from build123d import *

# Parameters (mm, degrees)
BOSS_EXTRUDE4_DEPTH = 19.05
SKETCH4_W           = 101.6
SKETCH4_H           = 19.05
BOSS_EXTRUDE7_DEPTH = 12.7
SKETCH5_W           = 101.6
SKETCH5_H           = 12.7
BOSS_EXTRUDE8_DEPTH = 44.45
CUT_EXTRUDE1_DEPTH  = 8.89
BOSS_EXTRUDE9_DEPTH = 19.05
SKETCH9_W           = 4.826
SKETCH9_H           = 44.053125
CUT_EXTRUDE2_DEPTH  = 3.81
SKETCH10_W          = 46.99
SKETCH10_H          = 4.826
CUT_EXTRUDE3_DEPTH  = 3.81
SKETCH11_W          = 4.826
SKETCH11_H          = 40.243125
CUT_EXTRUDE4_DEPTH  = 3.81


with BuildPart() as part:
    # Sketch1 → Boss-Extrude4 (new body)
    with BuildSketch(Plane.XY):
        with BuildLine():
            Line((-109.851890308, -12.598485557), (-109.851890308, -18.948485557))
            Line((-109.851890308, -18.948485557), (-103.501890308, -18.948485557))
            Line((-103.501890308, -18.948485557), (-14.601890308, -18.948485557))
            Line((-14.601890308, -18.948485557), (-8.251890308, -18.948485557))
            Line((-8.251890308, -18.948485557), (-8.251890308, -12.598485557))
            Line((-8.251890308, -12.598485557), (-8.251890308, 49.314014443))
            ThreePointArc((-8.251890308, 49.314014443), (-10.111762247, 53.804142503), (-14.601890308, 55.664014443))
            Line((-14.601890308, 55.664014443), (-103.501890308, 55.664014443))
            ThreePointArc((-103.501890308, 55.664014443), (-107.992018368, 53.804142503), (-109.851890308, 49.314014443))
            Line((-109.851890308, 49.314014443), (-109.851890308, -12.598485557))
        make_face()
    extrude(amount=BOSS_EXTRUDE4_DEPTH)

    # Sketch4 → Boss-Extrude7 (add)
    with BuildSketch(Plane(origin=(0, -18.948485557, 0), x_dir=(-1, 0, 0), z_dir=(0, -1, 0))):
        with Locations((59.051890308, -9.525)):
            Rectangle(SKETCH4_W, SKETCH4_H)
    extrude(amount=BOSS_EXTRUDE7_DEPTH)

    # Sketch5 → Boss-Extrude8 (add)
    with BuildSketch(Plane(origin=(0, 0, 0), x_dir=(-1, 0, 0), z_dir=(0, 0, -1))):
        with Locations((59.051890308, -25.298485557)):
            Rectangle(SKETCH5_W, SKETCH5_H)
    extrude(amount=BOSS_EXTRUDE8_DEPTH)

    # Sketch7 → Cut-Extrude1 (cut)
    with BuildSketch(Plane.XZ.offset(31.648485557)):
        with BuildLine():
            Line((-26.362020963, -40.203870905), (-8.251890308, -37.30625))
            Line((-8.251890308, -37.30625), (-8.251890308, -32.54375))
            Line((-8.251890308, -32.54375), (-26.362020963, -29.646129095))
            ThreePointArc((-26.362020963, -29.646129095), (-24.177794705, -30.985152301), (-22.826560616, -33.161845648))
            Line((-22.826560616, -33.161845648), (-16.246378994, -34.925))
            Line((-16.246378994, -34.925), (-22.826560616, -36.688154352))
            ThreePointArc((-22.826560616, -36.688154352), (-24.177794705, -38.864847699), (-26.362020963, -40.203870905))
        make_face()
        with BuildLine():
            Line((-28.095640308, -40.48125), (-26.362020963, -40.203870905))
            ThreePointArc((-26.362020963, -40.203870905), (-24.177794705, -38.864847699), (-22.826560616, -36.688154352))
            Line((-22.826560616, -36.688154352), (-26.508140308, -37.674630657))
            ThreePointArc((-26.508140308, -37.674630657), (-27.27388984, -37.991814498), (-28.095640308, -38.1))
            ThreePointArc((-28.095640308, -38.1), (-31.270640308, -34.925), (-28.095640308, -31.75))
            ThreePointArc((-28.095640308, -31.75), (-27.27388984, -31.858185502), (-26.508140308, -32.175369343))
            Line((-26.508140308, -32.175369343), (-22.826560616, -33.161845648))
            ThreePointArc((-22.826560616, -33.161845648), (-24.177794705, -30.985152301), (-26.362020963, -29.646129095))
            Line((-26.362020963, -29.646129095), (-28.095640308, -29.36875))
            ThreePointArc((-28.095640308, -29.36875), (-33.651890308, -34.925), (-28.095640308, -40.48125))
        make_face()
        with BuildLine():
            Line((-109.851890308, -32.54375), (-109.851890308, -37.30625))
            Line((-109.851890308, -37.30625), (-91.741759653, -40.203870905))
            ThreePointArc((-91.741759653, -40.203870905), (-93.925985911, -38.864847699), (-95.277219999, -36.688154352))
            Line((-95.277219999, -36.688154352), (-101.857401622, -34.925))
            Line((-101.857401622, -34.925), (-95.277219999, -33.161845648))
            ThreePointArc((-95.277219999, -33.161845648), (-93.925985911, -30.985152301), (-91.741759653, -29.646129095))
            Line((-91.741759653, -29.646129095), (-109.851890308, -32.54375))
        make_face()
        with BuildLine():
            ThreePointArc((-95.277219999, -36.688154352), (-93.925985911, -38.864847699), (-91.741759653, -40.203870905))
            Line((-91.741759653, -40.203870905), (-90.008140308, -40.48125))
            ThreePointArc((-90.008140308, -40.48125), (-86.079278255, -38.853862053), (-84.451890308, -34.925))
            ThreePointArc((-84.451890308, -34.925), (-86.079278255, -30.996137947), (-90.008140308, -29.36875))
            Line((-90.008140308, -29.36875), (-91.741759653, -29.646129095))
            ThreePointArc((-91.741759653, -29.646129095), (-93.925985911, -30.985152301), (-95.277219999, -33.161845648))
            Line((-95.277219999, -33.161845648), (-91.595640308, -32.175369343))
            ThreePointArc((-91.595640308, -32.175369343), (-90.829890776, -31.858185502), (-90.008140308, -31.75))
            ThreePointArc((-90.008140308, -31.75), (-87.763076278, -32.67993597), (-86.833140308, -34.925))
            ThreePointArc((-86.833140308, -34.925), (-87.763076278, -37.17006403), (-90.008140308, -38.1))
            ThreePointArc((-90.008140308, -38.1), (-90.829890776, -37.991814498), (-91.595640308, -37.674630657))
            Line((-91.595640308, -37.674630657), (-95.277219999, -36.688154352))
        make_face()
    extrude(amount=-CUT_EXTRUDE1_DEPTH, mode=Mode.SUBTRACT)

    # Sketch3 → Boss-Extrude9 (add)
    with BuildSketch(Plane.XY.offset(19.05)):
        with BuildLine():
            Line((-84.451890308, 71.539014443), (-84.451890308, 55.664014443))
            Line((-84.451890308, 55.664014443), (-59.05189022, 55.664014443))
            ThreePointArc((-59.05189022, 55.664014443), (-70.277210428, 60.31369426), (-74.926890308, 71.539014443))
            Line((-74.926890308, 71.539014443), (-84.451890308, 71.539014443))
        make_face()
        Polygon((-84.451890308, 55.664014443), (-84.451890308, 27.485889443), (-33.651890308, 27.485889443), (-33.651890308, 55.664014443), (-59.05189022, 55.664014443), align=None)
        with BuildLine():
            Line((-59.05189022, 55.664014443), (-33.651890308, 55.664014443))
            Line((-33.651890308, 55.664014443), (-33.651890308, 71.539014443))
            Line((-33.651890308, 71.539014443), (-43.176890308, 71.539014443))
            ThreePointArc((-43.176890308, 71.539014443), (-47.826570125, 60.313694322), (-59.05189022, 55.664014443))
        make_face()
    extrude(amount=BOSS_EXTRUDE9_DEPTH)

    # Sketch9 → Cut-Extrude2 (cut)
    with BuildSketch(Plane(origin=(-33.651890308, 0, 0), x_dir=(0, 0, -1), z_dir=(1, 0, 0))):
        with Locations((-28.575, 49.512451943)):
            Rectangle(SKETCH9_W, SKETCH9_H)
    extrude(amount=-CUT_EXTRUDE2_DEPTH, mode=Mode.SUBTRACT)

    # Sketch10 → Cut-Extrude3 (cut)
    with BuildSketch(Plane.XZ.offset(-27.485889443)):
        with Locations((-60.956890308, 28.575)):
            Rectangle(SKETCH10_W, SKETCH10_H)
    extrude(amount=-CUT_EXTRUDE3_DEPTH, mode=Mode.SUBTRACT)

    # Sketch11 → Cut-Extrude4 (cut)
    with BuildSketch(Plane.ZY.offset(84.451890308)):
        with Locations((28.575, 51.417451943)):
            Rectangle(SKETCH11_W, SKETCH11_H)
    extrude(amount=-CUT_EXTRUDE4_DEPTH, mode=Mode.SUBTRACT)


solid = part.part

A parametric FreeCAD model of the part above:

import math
import FreeCAD as App
import Part
import Sketcher
Q = App.Units.Quantity


def add_polygon(sketch, points):
    """Adds a closed chain of lines whose ends are joined by coincident constraints."""
    first, n = sketch.GeometryCount, len(points)
    for a, b in zip(points, points[1:] + points[:1]):
        sketch.addGeometry(Part.LineSegment(App.Vector(*a, 0), App.Vector(*b, 0)), False)
    for i in range(n):
        sketch.addConstraint(Sketcher.Constraint("Coincident", first + i, 2, first + (i + 1) % n, 1))

doc = App.newDocument("Part")
body = doc.addObject("PartDesign::Body", "Body")

sketch1 = body.newObject("Sketcher::SketchObject", "Sketch")
sketch1.AttachmentSupport = (doc.getObject("XY_Plane"), [""])
sketch1.MapMode = "FlatFace"
sketch1.addGeometry([
    Part.LineSegment(App.Vector(-109.85189, -18.948486, 0), App.Vector(-8.25189, -18.948486, 0)),
    Part.LineSegment(App.Vector(-8.25189, -18.948486, 0), App.Vector(-8.25189, 49.314014, 0)),
    Part.ArcOfCircle(Part.Circle(App.Vector(-14.60189, 49.314014, 0), App.Vector(0, 0, 1), 6.35), math.radians(0), math.radians(90)),
    Part.LineSegment(App.Vector(-14.60189, 55.664014, 0), App.Vector(-103.50189, 55.664014, 0)),
    Part.ArcOfCircle(Part.Circle(App.Vector(-103.50189, 49.314014, 0), App.Vector(0, 0, 1), 6.35), math.radians(90), math.radians(180)),
    Part.LineSegment(App.Vector(-109.85189, 49.314014, 0), App.Vector(-109.85189, -18.948486, 0)),
], False)
sketch1.addConstraint([
    Sketcher.Constraint("Coincident", 0, 2, 1, 1),
    Sketcher.Constraint("Tangent", 1, 2, 2, 1),
    Sketcher.Constraint("Tangent", 2, 2, 3, 1),
    Sketcher.Constraint("Tangent", 3, 2, 4, 1),
    Sketcher.Constraint("Tangent", 4, 2, 5, 1),
    Sketcher.Constraint("Coincident", 5, 2, 0, 1),
    Sketcher.Constraint("Horizontal", 0),
    Sketcher.Constraint("Vertical", 1),
    Sketcher.Constraint("Horizontal", 3),
    Sketcher.Constraint("Vertical", 5),
    Sketcher.Constraint("Equal", 2, 4),
    Sketcher.Constraint("DistanceX", 0, 1, 0, 2, Q("4 in")),
    Sketcher.Constraint("Radius", 2, Q("0.25 in")),
    Sketcher.Constraint("DistanceY", 1, 1, 1, 2, Q("2.6875 in")),
    Sketcher.Constraint("DistanceX", 2, 3, -1, 1, 14.60189),
    Sketcher.Constraint("DistanceY", -1, 1, 2, 3, 49.314014),
])
pad1 = body.newObject("PartDesign::Pad", "Pad")
pad1.Profile = sketch1
pad1.Length = Q("0.75 in")

sketch2 = body.newObject("Sketcher::SketchObject", "Sketch001")
sketch2.AttachmentSupport = (doc.getObject("XZ_Plane"), [""])
sketch2.MapMode = "FlatFace"
sketch2.AttachmentOffset = App.Placement(App.Vector(0, 0, 18.948486), App.Rotation())
add_polygon(sketch2, [(-8.25189, 0), (-8.25189, 19.05), (-109.85189, 19.05), (-109.85189, 0)])
sketch2.addConstraint([
    Sketcher.Constraint("Vertical", 0),
    Sketcher.Constraint("Horizontal", 1),
    Sketcher.Constraint("Vertical", 2),
    Sketcher.Constraint("Horizontal", 3),
    Sketcher.Constraint("PointOnObject", 2, 2, -1),
    Sketcher.Constraint("DistanceX", 1, 2, 1, 1, Q("4 in")),
    Sketcher.Constraint("DistanceY", 0, 1, 0, 2, Q("0.75 in")),
    Sketcher.Constraint("DistanceX", 0, 2, -1, 1, 8.25189),
])
pad2 = body.newObject("PartDesign::Pad", "Pad001")
pad2.Profile = sketch2
pad2.Length = Q("0.5 in")

sketch3 = body.newObject("Sketcher::SketchObject", "Sketch002")
sketch3.AttachmentSupport = (doc.getObject("XY_Plane"), [""])
sketch3.MapMode = "FlatFace"
add_polygon(sketch3, [(-8.25189, -18.948486), (-8.25189, -31.648486), (-109.85189, -31.648486), (-109.85189, -18.948486)])
sketch3.addConstraint([
    Sketcher.Constraint("Vertical", 0),
    Sketcher.Constraint("Horizontal", 1),
    Sketcher.Constraint("Vertical", 2),
    Sketcher.Constraint("Horizontal", 3),
    Sketcher.Constraint("DistanceX", 1, 2, 1, 1, Q("4 in")),
    Sketcher.Constraint("DistanceY", 0, 2, 0, 1, Q("0.5 in")),
    Sketcher.Constraint("DistanceX", 0, 2, -1, 1, 8.25189),
    Sketcher.Constraint("DistanceY", 0, 2, -1, 1, 31.648486),
])
pad3 = body.newObject("PartDesign::Pad", "Pad002")
pad3.Profile = sketch3
pad3.Length = Q("1.75 in")
pad3.Reversed = True

sketch4 = body.newObject("Sketcher::SketchObject", "Sketch003")
sketch4.AttachmentSupport = (doc.getObject("XZ_Plane"), [""])
sketch4.MapMode = "FlatFace"
sketch4.AttachmentOffset = App.Placement(App.Vector(0, 0, 31.648486), App.Rotation())
sketch4.addGeometry([
    Part.LineSegment(App.Vector(-26.362021, -40.203871, 0), App.Vector(-8.25189, -37.30625, 0)),
    Part.LineSegment(App.Vector(-8.25189, -37.30625, 0), App.Vector(-8.25189, -32.54375, 0)),
    Part.LineSegment(App.Vector(-8.25189, -32.54375, 0), App.Vector(-26.362021, -29.646129, 0)),
    Part.LineSegment(App.Vector(-26.362021, -29.646129, 0), App.Vector(-28.09564, -29.36875, 0)),
    Part.ArcOfCircle(Part.Circle(App.Vector(-28.09564, -34.925, 0), App.Vector(0, 0, 1), 5.55625), math.radians(90), math.radians(270)),
    Part.LineSegment(App.Vector(-28.09564, -40.48125, 0), App.Vector(-26.362021, -40.203871, 0)),
    Part.LineSegment(App.Vector(-22.826561, -33.161846, 0), App.Vector(-16.246379, -34.925, 0)),
    Part.LineSegment(App.Vector(-16.246379, -34.925, 0), App.Vector(-22.826561, -36.688154, 0)),
    Part.LineSegment(App.Vector(-22.826561, -36.688154, 0), App.Vector(-26.50814, -37.674631, 0)),
    Part.ArcOfCircle(Part.Circle(App.Vector(-28.09564, -34.925, 0), App.Vector(0, 0, 1), 3.175), math.radians(-90), math.radians(-60)),
    Part.ArcOfCircle(Part.Circle(App.Vector(-28.09564, -34.925, 0), App.Vector(0, 0, 1), 3.175), math.radians(90), math.radians(270)),
    Part.ArcOfCircle(Part.Circle(App.Vector(-28.09564, -34.925, 0), App.Vector(0, 0, 1), 3.175), math.radians(60), math.radians(90)),
    Part.LineSegment(App.Vector(-26.50814, -32.175369, 0), App.Vector(-22.826561, -33.161846, 0)),
    Part.LineSegment(App.Vector(-109.85189, -32.54375, 0), App.Vector(-109.85189, -37.30625, 0)),
    Part.LineSegment(App.Vector(-109.85189, -37.30625, 0), App.Vector(-91.74176, -40.203871, 0)),
    Part.LineSegment(App.Vector(-91.74176, -40.203871, 0), App.Vector(-90.00814, -40.48125, 0)),
    Part.ArcOfCircle(Part.Circle(App.Vector(-90.00814, -34.925, 0), App.Vector(0, 0, 1), 5.55625), math.radians(-90), math.radians(0)),
    Part.ArcOfCircle(Part.Circle(App.Vector(-90.00814, -34.925, 0), App.Vector(0, 0, 1), 5.55625), math.radians(0), math.radians(90)),
    Part.LineSegment(App.Vector(-90.00814, -29.36875, 0), App.Vector(-91.74176, -29.646129, 0)),
    Part.LineSegment(App.Vector(-91.74176, -29.646129, 0), App.Vector(-109.85189, -32.54375, 0)),
    Part.LineSegment(App.Vector(-95.27722, -36.688154, 0), App.Vector(-101.857402, -34.925, 0)),
    Part.LineSegment(App.Vector(-101.857402, -34.925, 0), App.Vector(-95.27722, -33.161846, 0)),
    Part.LineSegment(App.Vector(-95.27722, -33.161846, 0), App.Vector(-91.59564, -32.175369, 0)),
    Part.ArcOfCircle(Part.Circle(App.Vector(-90.00814, -34.925, 0), App.Vector(0, 0, 1), 3.175), math.radians(90), math.radians(120)),
    Part.ArcOfCircle(Part.Circle(App.Vector(-90.00814, -34.925, 0), App.Vector(0, 0, 1), 3.175), math.radians(0), math.radians(90)),
    Part.ArcOfCircle(Part.Circle(App.Vector(-90.00814, -34.925, 0), App.Vector(0, 0, 1), 3.175), math.radians(-90), math.radians(0)),
    Part.ArcOfCircle(Part.Circle(App.Vector(-90.00814, -34.925, 0), App.Vector(0, 0, 1), 3.175), math.radians(-120), math.radians(-90)),
    Part.LineSegment(App.Vector(-91.59564, -37.674631, 0), App.Vector(-95.27722, -36.688154, 0)),
], False)
sketch4.addConstraint([
    Sketcher.Constraint("Coincident", 0, 2, 1, 1),
    Sketcher.Constraint("Coincident", 1, 2, 2, 1),
    Sketcher.Constraint("Coincident", 2, 2, 3, 1),
    Sketcher.Constraint("Coincident", 3, 2, 4, 1),
    Sketcher.Constraint("Coincident", 4, 2, 5, 1),
    Sketcher.Constraint("Coincident", 5, 2, 0, 1),
    Sketcher.Constraint("Coincident", 6, 2, 7, 1),
    Sketcher.Constraint("Coincident", 7, 2, 8, 1),
    Sketcher.Constraint("Coincident", 8, 2, 9, 2),
    Sketcher.Constraint("Tangent", 9, 1, 10, 2),
    Sketcher.Constraint("Tangent", 10, 1, 11, 2),
    Sketcher.Constraint("Coincident", 11, 1, 12, 1),
    Sketcher.Constraint("Coincident", 12, 2, 6, 1),
    Sketcher.Constraint("Coincident", 13, 2, 14, 1),
    Sketcher.Constraint("Coincident", 14, 2, 15, 1),
    Sketcher.Constraint("Coincident", 15, 2, 16, 1),
    Sketcher.Constraint("Tangent", 16, 2, 17, 1),
    Sketcher.Constraint("Coincident", 17, 2, 18, 1),
    Sketcher.Constraint("Coincident", 18, 2, 19, 1),
    Sketcher.Constraint("Coincident", 19, 2, 13, 1),
    Sketcher.Constraint("Coincident", 20, 2, 21, 1),
    Sketcher.Constraint("Coincident", 21, 2, 22, 1),
    Sketcher.Constraint("Coincident", 22, 2, 23, 2),
    Sketcher.Constraint("Tangent", 23, 1, 24, 2),
    Sketcher.Constraint("Tangent", 24, 1, 25, 2),
    Sketcher.Constraint("Tangent", 25, 1, 26, 2),
    Sketcher.Constraint("Coincident", 26, 1, 27, 1),
    Sketcher.Constraint("Coincident", 27, 2, 20, 1),
    Sketcher.Constraint("Vertical", 1),
    Sketcher.Constraint("Vertical", 13),
    Sketcher.Constraint("Coincident", 9, 3, 4, 3),
    Sketcher.Constraint("Coincident", 23, 3, 16, 3),
    Sketcher.Constraint("Coincident", 25, 3, 16, 3),
    Sketcher.Constraint("Equal", 9, 10),
    Sketcher.Constraint("Equal", 10, 11),
    Sketcher.Constraint("Equal", 4, 16),
    Sketcher.Constraint("Equal", 16, 17),
    Sketcher.Constraint("Equal", 11, 23),
    Sketcher.Constraint("Equal", 25, 26),
    Sketcher.Constraint("Parallel", 2, 3),
    Sketcher.Constraint("Parallel", 0, 5),
    Sketcher.Constraint("Parallel", 7, 8),
    Sketcher.Constraint("Parallel", 6, 12),
    Sketcher.Constraint("Parallel", 3, 14),
    Sketcher.Constraint("Parallel", 14, 15),
    Sketcher.Constraint("Parallel", 5, 18),
    Sketcher.Constraint("Parallel", 18, 19),
    Sketcher.Constraint("Parallel", 12, 20),
    Sketcher.Constraint("Parallel", 8, 21),
    Sketcher.Constraint("Parallel", 21, 22),
    Sketcher.Constraint("Parallel", 20, 27),
    Sketcher.Constraint("Horizontal", 11, 3, 16, 3),
    Sketcher.Constraint("Horizontal", 26, 3, 6, 2),
    Sketcher.Constraint("Horizontal", 0, 2, 13, 2),
    Sketcher.Constraint("Horizontal", 5, 2, 14, 2),
    Sketcher.Constraint("Horizontal", 6, 2, 16, 2),
    Sketcher.Constraint("Horizontal", 2, 2, 18, 2),
    Sketcher.Constraint("Horizontal", 1, 2, 19, 2),
    Sketcher.Constraint("Horizontal", 16, 2, 20, 2),
    Sketcher.Constraint("Horizontal", 12, 2, 21, 2),
    Sketcher.Constraint("Horizontal", 11, 1, 22, 2),
    Sketcher.Constraint("Horizontal", 20, 2, 24, 1),
    Sketcher.Constraint("Horizontal", 8, 2, 26, 1),
    Sketcher.Constraint("Horizontal", 7, 2, 27, 2),
    Sketcher.Constraint("Vertical", 11, 3, 3, 2),
    Sketcher.Constraint("Vertical", 3, 2, 4, 2),
    Sketcher.Constraint("Vertical", 2, 2, 5, 2),
    Sketcher.Constraint("Vertical", 4, 2, 9, 1),
    Sketcher.Constraint("Vertical", 9, 1, 10, 1),
    Sketcher.Constraint("Vertical", 7, 2, 12, 2),
    Sketcher.Constraint("Vertical", 26, 3, 15, 2),
    Sketcher.Constraint("Vertical", 15, 2, 17, 2),
    Sketcher.Constraint("Vertical", 17, 2, 23, 1),
    Sketcher.Constraint("Vertical", 23, 1, 25, 1),
    Sketcher.Constraint("Angle", 6, Q("-15 deg")),
    Sketcher.Constraint("Radius", 4, Q("0.21875 in")),
    Sketcher.Constraint("Radius", 9, Q("0.125 in")),
    Sketcher.Constraint("DistanceY", 9, 1, -1, 1, Q("1.5 in")),
    Sketcher.Constraint("DistanceY", 1, 1, 1, 2, Q("0.1875 in")),
    Sketcher.Constraint("DistanceX", 16, 3, 9, 3, Q("2.4375 in")),
    Sketcher.Constraint("DistanceX", 4, 3, 0, 2, Q("0.78125 in")),
    Sketcher.Constraint("DistanceX", 11, 3, 8, 2, Q("0.0625 in")),
    Sketcher.Constraint("DistanceX", 20, 2, -1, 1, 101.857402),
    Sketcher.Constraint("Distance", 3, 1.755669),
    Sketcher.Constraint("Distance", 8, 3.811452),
])
pocket1 = body.newObject("PartDesign::Pocket", "Pocket")
pocket1.Profile = sketch4
pocket1.Length = Q("0.35 in")

sketch5 = body.newObject("Sketcher::SketchObject", "Sketch004")
sketch5.AttachmentSupport = (doc.getObject("XY_Plane"), [""])
sketch5.MapMode = "FlatFace"
sketch5.AttachmentOffset = App.Placement(App.Vector(0, 0, 0.75 * 25.4), App.Rotation())
sketch5.addGeometry([
    Part.LineSegment(App.Vector(-84.45189, 71.539014, 0), App.Vector(-84.45189, 27.485889, 0)),
    Part.LineSegment(App.Vector(-84.45189, 27.485889, 0), App.Vector(-33.65189, 27.485889, 0)),
    Part.LineSegment(App.Vector(-33.65189, 27.485889, 0), App.Vector(-33.65189, 71.539014, 0)),
    Part.LineSegment(App.Vector(-33.65189, 71.539014, 0), App.Vector(-43.17689, 71.539014, 0)),
    Part.ArcOfCircle(Part.Circle(App.Vector(-59.05189, 71.539014, 0), App.Vector(0, 0, 1), 15.875), math.radians(-90), math.radians(0)),
    Part.ArcOfCircle(Part.Circle(App.Vector(-59.05189, 71.539014, 0), App.Vector(0, 0, 1), 15.875), math.radians(180), math.radians(270)),
    Part.LineSegment(App.Vector(-74.92689, 71.539014, 0), App.Vector(-84.45189, 71.539014, 0)),
], False)
sketch5.addConstraint([
    Sketcher.Constraint("Coincident", 0, 2, 1, 1),
    Sketcher.Constraint("Coincident", 1, 2, 2, 1),
    Sketcher.Constraint("Coincident", 2, 2, 3, 1),
    Sketcher.Constraint("Coincident", 3, 2, 4, 2),
    Sketcher.Constraint("Tangent", 4, 1, 5, 2),
    Sketcher.Constraint("Coincident", 5, 1, 6, 1),
    Sketcher.Constraint("Coincident", 6, 2, 0, 1),
    Sketcher.Constraint("Vertical", 0),
    Sketcher.Constraint("Horizontal", 1),
    Sketcher.Constraint("Vertical", 2),
    Sketcher.Constraint("Horizontal", 3),
    Sketcher.Constraint("Horizontal", 6),
    Sketcher.Constraint("Equal", 4, 5),
    Sketcher.Constraint("Horizontal", 5, 3, 2, 2),
    Sketcher.Constraint("Horizontal", 3, 2, 5, 1),
    Sketcher.Constraint("Vertical", 5, 3, 4, 1),
    Sketcher.Constraint("Equal", 3, 6),
    Sketcher.Constraint("DistanceX", 1, 1, 1, 2, Q("2 in")),
    Sketcher.Constraint("Radius", 4, Q("0.625 in")),
    Sketcher.Constraint("DistanceY", 0, 2, 0, 1, Q("1.734375 in")),
    Sketcher.Constraint("DistanceX", 4, 3, -1, 1, 59.05189),
    Sketcher.Constraint("DistanceY", -1, 1, 0, 2, 27.485889),
])
pad4 = body.newObject("PartDesign::Pad", "Pad003")
pad4.Profile = sketch5
pad4.Length = Q("0.75 in")

sketch6 = body.newObject("Sketcher::SketchObject", "Sketch005")
sketch6.AttachmentSupport = (doc.getObject("YZ_Plane"), [""])
sketch6.MapMode = "FlatFace"
sketch6.AttachmentOffset = App.Placement(App.Vector(0, 0, -33.65189), App.Rotation())
add_polygon(sketch6, [(71.539014, 30.988), (27.485889, 30.988), (27.485889, 26.162), (71.539014, 26.162)])
sketch6.addConstraint([
    Sketcher.Constraint("Horizontal", 0),
    Sketcher.Constraint("Vertical", 1),
    Sketcher.Constraint("Horizontal", 2),
    Sketcher.Constraint("Vertical", 3),
    Sketcher.Constraint("DistanceY", 1, 2, 1, 1, Q("0.19 in")),
    Sketcher.Constraint("DistanceX", 0, 2, 0, 1, Q("1.734375 in")),
    Sketcher.Constraint("DistanceY", -1, 1, 0, 2, Q("1.22 in")),
    Sketcher.Constraint("DistanceX", -1, 1, 0, 2, 27.485889),
])
pocket2 = body.newObject("PartDesign::Pocket", "Pocket001")
pocket2.Profile = sketch6
pocket2.Length = Q("0.15 in")

sketch7 = body.newObject("Sketcher::SketchObject", "Sketch006")
sketch7.AttachmentSupport = (doc.getObject("XZ_Plane"), [""])
sketch7.MapMode = "FlatFace"
sketch7.AttachmentOffset = App.Placement(App.Vector(0, 0, -27.485889), App.Rotation())
add_polygon(sketch7, [(-84.45189, 30.988), (-84.45189, 26.162), (-37.46189, 26.162), (-37.46189, 30.988)])
sketch7.addConstraint([
    Sketcher.Constraint("Vertical", 0),
    Sketcher.Constraint("Horizontal", 1),
    Sketcher.Constraint("Vertical", 2),
    Sketcher.Constraint("Horizontal", 3),
    Sketcher.Constraint("DistanceX", 1, 1, 1, 2, Q("1.85 in")),
    Sketcher.Constraint("DistanceY", 0, 2, 0, 1, Q("0.19 in")),
    Sketcher.Constraint("DistanceY", -1, 1, 0, 2, Q("1.03 in")),
    Sketcher.Constraint("DistanceX", 0, 2, -1, 1, 84.45189),
])
pocket3 = body.newObject("PartDesign::Pocket", "Pocket002")
pocket3.Profile = sketch7
pocket3.Length = Q("0.15 in")

sketch8 = body.newObject("Sketcher::SketchObject", "Sketch007")
sketch8.AttachmentSupport = (doc.getObject("YZ_Plane"), [""])
sketch8.MapMode = "FlatFace"
sketch8.AttachmentOffset = App.Placement(App.Vector(0, 0, -84.45189), App.Rotation())
add_polygon(sketch8, [(71.539014, 26.162), (31.295889, 26.162), (31.295889, 30.988), (71.539014, 30.988)])
sketch8.addConstraint([
    Sketcher.Constraint("Horizontal", 0),
    Sketcher.Constraint("Vertical", 1),
    Sketcher.Constraint("Horizontal", 2),
    Sketcher.Constraint("Vertical", 3),
    Sketcher.Constraint("DistanceY", 1, 1, 1, 2, Q("0.19 in")),
    Sketcher.Constraint("DistanceY", -1, 1, 0, 2, Q("1.03 in")),
    Sketcher.Constraint("DistanceX", 0, 2, 0, 1, 40.243125),
    Sketcher.Constraint("DistanceX", -1, 1, 0, 2, 31.295889),
])
pocket4 = body.newObject("PartDesign::Pocket", "Pocket003")
pocket4.Profile = sketch8
pocket4.Length = Q("0.15 in")
pocket4.Reversed = True

doc.recompute()
